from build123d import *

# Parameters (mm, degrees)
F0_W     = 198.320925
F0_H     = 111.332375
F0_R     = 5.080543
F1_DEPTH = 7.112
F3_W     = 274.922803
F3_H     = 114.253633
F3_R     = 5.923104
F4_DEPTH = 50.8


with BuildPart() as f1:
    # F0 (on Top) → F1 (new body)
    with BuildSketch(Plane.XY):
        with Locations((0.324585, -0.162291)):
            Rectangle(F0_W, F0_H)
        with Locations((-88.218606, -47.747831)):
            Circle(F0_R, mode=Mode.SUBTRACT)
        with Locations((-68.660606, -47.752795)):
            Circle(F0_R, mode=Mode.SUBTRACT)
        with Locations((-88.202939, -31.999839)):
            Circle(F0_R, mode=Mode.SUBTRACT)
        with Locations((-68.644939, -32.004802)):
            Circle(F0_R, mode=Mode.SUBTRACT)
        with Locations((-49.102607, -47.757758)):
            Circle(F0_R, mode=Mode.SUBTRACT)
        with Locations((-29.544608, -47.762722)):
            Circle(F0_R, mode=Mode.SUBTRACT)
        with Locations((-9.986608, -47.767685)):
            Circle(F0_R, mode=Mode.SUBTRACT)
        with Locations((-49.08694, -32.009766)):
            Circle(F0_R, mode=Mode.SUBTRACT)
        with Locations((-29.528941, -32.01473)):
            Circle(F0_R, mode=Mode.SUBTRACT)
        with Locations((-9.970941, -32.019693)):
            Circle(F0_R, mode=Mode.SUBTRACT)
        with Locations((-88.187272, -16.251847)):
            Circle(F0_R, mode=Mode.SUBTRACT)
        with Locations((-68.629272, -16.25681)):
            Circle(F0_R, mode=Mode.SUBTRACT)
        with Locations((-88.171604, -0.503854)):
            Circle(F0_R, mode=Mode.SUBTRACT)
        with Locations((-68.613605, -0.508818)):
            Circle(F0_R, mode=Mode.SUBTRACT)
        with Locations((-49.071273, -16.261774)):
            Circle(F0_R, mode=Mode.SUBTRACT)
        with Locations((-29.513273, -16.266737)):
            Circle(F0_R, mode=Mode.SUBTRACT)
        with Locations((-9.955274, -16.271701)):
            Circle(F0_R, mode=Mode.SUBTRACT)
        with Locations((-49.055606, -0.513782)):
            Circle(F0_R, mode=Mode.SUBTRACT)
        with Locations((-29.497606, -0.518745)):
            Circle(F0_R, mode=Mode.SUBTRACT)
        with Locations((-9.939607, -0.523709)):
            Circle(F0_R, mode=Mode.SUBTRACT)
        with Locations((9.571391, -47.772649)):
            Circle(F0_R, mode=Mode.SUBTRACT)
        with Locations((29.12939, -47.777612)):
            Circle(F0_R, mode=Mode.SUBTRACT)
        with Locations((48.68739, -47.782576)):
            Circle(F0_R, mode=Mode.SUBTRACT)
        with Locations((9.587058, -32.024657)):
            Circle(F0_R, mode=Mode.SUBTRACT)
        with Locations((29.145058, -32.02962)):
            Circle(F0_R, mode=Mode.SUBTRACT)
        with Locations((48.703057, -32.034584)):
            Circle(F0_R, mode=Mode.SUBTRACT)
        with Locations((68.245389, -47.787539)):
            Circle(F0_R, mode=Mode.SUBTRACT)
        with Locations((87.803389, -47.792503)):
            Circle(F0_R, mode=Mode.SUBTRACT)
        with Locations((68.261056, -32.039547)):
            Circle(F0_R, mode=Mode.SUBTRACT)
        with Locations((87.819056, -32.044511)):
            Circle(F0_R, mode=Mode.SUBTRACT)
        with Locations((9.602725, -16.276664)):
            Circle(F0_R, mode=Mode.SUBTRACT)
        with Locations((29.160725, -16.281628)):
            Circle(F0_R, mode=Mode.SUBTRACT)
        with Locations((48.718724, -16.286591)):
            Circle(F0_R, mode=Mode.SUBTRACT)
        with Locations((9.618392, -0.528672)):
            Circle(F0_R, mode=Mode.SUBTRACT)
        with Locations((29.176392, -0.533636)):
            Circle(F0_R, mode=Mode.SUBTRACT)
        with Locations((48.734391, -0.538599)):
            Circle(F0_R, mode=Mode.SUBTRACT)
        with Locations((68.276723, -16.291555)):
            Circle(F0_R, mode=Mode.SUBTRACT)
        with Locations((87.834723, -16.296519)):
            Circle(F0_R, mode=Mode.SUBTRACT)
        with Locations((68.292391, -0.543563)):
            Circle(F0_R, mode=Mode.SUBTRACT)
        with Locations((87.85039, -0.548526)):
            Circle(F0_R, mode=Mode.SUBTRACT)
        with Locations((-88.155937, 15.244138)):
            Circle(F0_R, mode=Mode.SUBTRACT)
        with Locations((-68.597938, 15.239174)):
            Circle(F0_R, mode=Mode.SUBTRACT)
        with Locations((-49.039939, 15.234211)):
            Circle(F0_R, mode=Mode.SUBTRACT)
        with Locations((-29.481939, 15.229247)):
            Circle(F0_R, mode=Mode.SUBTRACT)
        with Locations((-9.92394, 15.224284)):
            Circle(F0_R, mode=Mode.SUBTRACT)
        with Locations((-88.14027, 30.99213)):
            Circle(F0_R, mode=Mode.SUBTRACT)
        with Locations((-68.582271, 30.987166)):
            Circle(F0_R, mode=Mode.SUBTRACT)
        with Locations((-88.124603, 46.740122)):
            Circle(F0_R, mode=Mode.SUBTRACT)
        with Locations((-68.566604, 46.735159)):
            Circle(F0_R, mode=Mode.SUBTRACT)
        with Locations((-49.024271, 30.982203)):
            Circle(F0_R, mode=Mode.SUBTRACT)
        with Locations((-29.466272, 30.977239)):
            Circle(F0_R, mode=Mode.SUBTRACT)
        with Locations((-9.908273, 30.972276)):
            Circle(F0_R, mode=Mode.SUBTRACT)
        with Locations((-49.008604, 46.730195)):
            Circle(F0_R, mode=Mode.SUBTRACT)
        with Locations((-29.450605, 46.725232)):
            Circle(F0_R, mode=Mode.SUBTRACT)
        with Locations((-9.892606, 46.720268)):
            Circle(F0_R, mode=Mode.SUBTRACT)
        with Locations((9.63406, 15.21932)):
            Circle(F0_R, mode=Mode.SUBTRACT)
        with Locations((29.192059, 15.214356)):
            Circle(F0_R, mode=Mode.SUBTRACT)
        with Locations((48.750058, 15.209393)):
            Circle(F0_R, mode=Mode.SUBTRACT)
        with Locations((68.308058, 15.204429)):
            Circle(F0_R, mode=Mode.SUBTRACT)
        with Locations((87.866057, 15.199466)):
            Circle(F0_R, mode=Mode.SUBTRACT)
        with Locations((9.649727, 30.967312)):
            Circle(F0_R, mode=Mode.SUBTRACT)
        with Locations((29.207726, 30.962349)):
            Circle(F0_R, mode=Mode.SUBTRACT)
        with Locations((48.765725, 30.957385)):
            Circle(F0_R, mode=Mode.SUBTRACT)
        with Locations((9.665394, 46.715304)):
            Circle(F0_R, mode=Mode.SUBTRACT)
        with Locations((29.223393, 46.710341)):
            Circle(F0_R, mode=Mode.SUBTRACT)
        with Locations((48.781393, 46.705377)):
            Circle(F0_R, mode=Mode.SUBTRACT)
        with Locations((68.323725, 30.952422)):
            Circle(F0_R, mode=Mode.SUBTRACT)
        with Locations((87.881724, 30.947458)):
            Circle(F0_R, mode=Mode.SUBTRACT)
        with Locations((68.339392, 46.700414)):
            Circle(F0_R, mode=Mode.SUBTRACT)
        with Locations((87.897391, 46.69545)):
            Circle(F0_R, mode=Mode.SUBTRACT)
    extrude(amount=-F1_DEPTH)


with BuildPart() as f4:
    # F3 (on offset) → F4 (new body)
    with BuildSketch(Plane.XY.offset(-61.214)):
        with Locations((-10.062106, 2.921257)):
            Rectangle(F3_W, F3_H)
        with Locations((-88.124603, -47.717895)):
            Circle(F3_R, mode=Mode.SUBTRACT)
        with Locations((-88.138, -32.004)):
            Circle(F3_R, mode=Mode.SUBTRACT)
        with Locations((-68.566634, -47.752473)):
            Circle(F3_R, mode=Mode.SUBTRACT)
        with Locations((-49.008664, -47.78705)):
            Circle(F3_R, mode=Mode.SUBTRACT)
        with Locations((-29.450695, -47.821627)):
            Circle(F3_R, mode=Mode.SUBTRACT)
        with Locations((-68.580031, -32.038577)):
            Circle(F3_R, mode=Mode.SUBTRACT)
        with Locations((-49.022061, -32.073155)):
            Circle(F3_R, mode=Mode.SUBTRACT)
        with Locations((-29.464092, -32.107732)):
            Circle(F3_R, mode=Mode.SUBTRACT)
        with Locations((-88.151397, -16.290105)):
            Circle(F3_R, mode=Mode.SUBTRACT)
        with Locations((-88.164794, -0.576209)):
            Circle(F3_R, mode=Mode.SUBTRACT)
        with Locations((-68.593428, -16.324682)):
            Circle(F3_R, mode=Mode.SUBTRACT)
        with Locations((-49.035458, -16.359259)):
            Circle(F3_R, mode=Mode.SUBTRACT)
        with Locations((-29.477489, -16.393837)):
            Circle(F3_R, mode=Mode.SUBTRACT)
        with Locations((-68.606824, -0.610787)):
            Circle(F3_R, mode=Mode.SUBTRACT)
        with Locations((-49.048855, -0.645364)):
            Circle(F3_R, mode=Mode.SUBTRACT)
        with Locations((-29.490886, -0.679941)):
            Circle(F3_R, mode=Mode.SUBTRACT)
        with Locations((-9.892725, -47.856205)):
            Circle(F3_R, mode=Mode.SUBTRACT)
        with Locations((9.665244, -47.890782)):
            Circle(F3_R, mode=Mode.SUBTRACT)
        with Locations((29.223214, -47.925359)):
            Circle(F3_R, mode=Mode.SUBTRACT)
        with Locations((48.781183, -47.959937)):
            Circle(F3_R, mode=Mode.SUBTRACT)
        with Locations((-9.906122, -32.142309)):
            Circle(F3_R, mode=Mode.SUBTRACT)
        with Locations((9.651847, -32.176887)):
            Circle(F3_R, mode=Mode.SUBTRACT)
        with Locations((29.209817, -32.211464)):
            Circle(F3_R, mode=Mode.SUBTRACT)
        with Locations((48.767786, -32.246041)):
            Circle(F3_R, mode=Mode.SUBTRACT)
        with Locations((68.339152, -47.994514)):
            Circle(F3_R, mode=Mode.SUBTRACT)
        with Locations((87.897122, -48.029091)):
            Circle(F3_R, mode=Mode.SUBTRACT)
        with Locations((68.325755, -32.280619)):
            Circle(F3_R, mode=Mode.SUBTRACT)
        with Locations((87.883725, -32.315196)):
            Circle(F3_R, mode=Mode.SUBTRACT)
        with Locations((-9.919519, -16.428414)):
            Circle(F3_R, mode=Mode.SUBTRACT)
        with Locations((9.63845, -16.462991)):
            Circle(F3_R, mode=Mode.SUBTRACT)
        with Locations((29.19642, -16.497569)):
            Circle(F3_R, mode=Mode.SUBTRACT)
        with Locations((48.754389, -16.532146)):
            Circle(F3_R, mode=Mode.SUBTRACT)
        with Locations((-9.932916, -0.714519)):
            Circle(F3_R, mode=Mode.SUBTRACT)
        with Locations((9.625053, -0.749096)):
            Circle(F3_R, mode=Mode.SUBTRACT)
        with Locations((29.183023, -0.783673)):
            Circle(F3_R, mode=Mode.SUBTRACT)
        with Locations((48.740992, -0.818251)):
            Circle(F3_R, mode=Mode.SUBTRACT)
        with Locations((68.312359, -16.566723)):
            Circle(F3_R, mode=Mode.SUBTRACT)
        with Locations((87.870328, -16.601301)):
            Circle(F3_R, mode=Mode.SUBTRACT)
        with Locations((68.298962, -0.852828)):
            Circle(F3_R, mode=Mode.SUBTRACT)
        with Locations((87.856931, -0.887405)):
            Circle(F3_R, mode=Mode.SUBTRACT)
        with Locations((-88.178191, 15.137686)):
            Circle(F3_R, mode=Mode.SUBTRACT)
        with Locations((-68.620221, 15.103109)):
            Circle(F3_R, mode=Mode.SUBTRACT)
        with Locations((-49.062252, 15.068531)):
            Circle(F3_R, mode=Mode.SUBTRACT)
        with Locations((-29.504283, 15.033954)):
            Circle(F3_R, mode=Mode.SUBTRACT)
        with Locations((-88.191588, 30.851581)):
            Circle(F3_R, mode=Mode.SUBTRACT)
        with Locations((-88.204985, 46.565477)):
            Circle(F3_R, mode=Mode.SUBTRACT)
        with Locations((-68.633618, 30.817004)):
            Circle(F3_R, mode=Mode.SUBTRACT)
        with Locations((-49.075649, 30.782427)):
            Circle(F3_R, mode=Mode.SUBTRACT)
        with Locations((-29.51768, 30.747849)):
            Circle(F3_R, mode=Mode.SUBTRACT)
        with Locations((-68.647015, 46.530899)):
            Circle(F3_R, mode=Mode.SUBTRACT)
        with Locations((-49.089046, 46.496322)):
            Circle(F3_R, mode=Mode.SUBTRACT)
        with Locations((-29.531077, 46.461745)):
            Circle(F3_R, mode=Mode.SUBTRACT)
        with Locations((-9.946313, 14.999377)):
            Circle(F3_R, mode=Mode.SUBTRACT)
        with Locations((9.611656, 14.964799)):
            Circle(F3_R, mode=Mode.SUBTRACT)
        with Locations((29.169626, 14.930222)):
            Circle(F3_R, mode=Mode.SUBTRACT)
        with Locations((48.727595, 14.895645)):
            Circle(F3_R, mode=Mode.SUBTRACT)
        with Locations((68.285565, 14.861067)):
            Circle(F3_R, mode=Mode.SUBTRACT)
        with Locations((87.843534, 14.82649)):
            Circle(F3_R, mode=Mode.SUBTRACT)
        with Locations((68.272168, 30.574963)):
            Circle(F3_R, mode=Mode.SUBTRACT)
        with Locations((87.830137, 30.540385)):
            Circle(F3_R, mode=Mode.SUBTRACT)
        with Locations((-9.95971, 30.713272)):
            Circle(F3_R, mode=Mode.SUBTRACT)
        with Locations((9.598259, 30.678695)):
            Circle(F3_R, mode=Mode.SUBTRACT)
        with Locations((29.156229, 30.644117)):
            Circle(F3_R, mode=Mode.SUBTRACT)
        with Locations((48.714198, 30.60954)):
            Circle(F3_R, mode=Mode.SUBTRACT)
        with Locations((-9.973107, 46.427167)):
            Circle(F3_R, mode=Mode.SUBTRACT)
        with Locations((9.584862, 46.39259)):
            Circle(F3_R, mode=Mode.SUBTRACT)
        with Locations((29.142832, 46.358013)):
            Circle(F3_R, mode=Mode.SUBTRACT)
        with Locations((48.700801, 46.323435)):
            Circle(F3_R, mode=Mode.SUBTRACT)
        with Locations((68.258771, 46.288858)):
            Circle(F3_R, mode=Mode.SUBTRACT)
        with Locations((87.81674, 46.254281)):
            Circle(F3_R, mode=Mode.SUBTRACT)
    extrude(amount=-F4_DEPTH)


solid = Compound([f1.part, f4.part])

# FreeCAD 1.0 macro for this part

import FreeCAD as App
import Part
import Sketcher
from FreeCAD import Vector
Q = App.Units.Quantity


def add_polygon(sketch, points):
    """Adds a closed chain of lines whose ends are joined by coincident constraints."""
    first, n = sketch.GeometryCount, len(points)
    for a, b in zip(points, points[1:] + points[:1]):
        sketch.addGeometry(Part.LineSegment(App.Vector(*a, 0), App.Vector(*b, 0)), False)
    for i in range(n):
        sketch.addConstraint(Sketcher.Constraint("Coincident", first + i, 2, first + (i + 1) % n, 1))

doc = App.newDocument("Part")
body = doc.addObject("PartDesign::Body", "Body")

sketch1 = body.newObject("Sketcher::SketchObject", "Sketch")
sketch1.AttachmentSupport = (doc.getObject("XY_Plane"), [""])
sketch1.MapMode = "FlatFace"
add_polygon(sketch1, [(-98.835877, 55.503897), (-98.835877, -55.828479), (99.485047, -55.828479), (99.485047, 55.503897)])
sketch1.addGeometry(Part.Circle(Vector(-88.218606, -47.747831, 0), Vector(0, 0, 1), 5.080543), False)
sketch1.addGeometry(Part.Circle(Vector(-68.660606, -47.752795, 0), Vector(0, 0, 1), 5.080543), False)
sketch1.addGeometry(Part.Circle(Vector(-49.102607, -47.757758, 0), Vector(0, 0, 1), 5.080543), False)
sketch1.addGeometry(Part.Circle(Vector(-88.202939, -31.999839, 0), Vector(0, 0, 1), 5.080543), False)
sketch1.addGeometry(Part.Circle(Vector(-68.644939, -32.004802, 0), Vector(0, 0, 1), 5.080543), False)
sketch1.addGeometry(Part.Circle(Vector(-49.08694, -32.009766, 0), Vector(0, 0, 1), 5.080543), False)
sketch1.addGeometry(Part.Circle(Vector(-29.544608, -47.762722, 0), Vector(0, 0, 1), 5.080543), False)
sketch1.addGeometry(Part.Circle(Vector(-9.986608, -47.767685, 0), Vector(0, 0, 1), 5.080543), False)
sketch1.addGeometry(Part.Circle(Vector(-29.528941, -32.01473, 0), Vector(0, 0, 1), 5.080543), False)
sketch1.addGeometry(Part.Circle(Vector(-9.970941, -32.019693, 0), Vector(0, 0, 1), 5.080543), False)
sketch1.addGeometry(Part.Circle(Vector(-88.187272, -16.251847, 0), Vector(0, 0, 1), 5.080543), False)
sketch1.addGeometry(Part.Circle(Vector(-68.629272, -16.25681, 0), Vector(0, 0, 1), 5.080543), False)
sketch1.addGeometry(Part.Circle(Vector(-49.071273, -16.261774, 0), Vector(0, 0, 1), 5.080543), False)
sketch1.addGeometry(Part.Circle(Vector(-29.513273, -16.266737, 0), Vector(0, 0, 1), 5.080543), False)
sketch1.addGeometry(Part.Circle(Vector(-9.955274, -16.271701, 0), Vector(0, 0, 1), 5.080543), False)
sketch1.addGeometry(Part.Circle(Vector(9.571391, -47.772649, 0), Vector(0, 0, 1), 5.080543), False)
sketch1.addGeometry(Part.Circle(Vector(29.12939, -47.777612, 0), Vector(0, 0, 1), 5.080543), False)
sketch1.addGeometry(Part.Circle(Vector(9.587058, -32.024657, 0), Vector(0, 0, 1), 5.080543), False)
sketch1.addGeometry(Part.Circle(Vector(29.145058, -32.02962, 0), Vector(0, 0, 1), 5.080543), False)
sketch1.addGeometry(Part.Circle(Vector(48.68739, -47.782576, 0), Vector(0, 0, 1), 5.080543), False)
sketch1.addGeometry(Part.Circle(Vector(68.245389, -47.787539, 0), Vector(0, 0, 1), 5.080543), False)
sketch1.addGeometry(Part.Circle(Vector(87.803389, -47.792503, 0), Vector(0, 0, 1), 5.080543), False)
sketch1.addGeometry(Part.Circle(Vector(48.703057, -32.034584, 0), Vector(0, 0, 1), 5.080543), False)
sketch1.addGeometry(Part.Circle(Vector(68.261056, -32.039547, 0), Vector(0, 0, 1), 5.080543), False)
sketch1.addGeometry(Part.Circle(Vector(87.819056, -32.044511, 0), Vector(0, 0, 1), 5.080543), False)
sketch1.addGeometry(Part.Circle(Vector(9.602725, -16.276664, 0), Vector(0, 0, 1), 5.080543), False)
sketch1.addGeometry(Part.Circle(Vector(29.160725, -16.281628, 0), Vector(0, 0, 1), 5.080543), False)
sketch1.addGeometry(Part.Circle(Vector(9.618392, -0.528672, 0), Vector(0, 0, 1), 5.080543), False)
sketch1.addGeometry(Part.Circle(Vector(29.176392, -0.533636, 0), Vector(0, 0, 1), 5.080543), False)
sketch1.addGeometry(Part.Circle(Vector(48.718724, -16.286591, 0), Vector(0, 0, 1), 5.080543), False)
sketch1.addGeometry(Part.Circle(Vector(68.276723, -16.291555, 0), Vector(0, 0, 1), 5.080543), False)
sketch1.addGeometry(Part.Circle(Vector(87.834723, -16.296519, 0), Vector(0, 0, 1), 5.080543), False)
sketch1.addGeometry(Part.Circle(Vector(48.734391, -0.538599, 0), Vector(0, 0, 1), 5.080543), False)
sketch1.addGeometry(Part.Circle(Vector(68.292391, -0.543563, 0), Vector(0, 0, 1), 5.080543), False)
sketch1.addGeometry(Part.Circle(Vector(87.85039, -0.548526, 0), Vector(0, 0, 1), 5.080543), False)
sketch1.addGeometry(Part.Circle(Vector(-88.171604, -0.503854, 0), Vector(0, 0, 1), 5.080543), False)
sketch1.addGeometry(Part.Circle(Vector(-68.613605, -0.508818, 0), Vector(0, 0, 1), 5.080543), False)
sketch1.addGeometry(Part.Circle(Vector(-49.055606, -0.513782, 0), Vector(0, 0, 1), 5.080543), False)
sketch1.addGeometry(Part.Circle(Vector(-88.155937, 15.244138, 0), Vector(0, 0, 1), 5.080543), False)
sketch1.addGeometry(Part.Circle(Vector(-68.597938, 15.239174, 0), Vector(0, 0, 1), 5.080543), False)
sketch1.addGeometry(Part.Circle(Vector(-49.039939, 15.234211, 0), Vector(0, 0, 1), 5.080543), False)
sketch1.addGeometry(Part.Circle(Vector(-29.497606, -0.518745, 0), Vector(0, 0, 1), 5.080543), False)
sketch1.addGeometry(Part.Circle(Vector(-9.939607, -0.523709, 0), Vector(0, 0, 1), 5.080543), False)
sketch1.addGeometry(Part.Circle(Vector(-29.481939, 15.229247, 0), Vector(0, 0, 1), 5.080543), False)
sketch1.addGeometry(Part.Circle(Vector(-9.92394, 15.224284, 0), Vector(0, 0, 1), 5.080543), False)
sketch1.addGeometry(Part.Circle(Vector(-88.14027, 30.99213, 0), Vector(0, 0, 1), 5.080543), False)
sketch1.addGeometry(Part.Circle(Vector(-68.582271, 30.987166, 0), Vector(0, 0, 1), 5.080543), False)
sketch1.addGeometry(Part.Circle(Vector(-49.024271, 30.982203, 0), Vector(0, 0, 1), 5.080543), False)
sketch1.addGeometry(Part.Circle(Vector(-88.124603, 46.740122, 0), Vector(0, 0, 1), 5.080543), False)
sketch1.addGeometry(Part.Circle(Vector(-68.566604, 46.735159, 0), Vector(0, 0, 1), 5.080543), False)
sketch1.addGeometry(Part.Circle(Vector(-49.008604, 46.730195, 0), Vector(0, 0, 1), 5.080543), False)
sketch1.addGeometry(Part.Circle(Vector(-29.466272, 30.977239, 0), Vector(0, 0, 1), 5.080543), False)
sketch1.addGeometry(Part.Circle(Vector(-9.908273, 30.972276, 0), Vector(0, 0, 1), 5.080543), False)
sketch1.addGeometry(Part.Circle(Vector(-29.450605, 46.725232, 0), Vector(0, 0, 1), 5.080543), False)
sketch1.addGeometry(Part.Circle(Vector(-9.892606, 46.720268, 0), Vector(0, 0, 1), 5.080543), False)
sketch1.addGeometry(Part.Circle(Vector(9.63406, 15.21932, 0), Vector(0, 0, 1), 5.080543), False)
sketch1.addGeometry(Part.Circle(Vector(29.192059, 15.214356, 0), Vector(0, 0, 1), 5.080543), False)
sketch1.addGeometry(Part.Circle(Vector(48.750058, 15.209393, 0), Vector(0, 0, 1), 5.080543), False)
sketch1.addGeometry(Part.Circle(Vector(68.308058, 15.204429, 0), Vector(0, 0, 1), 5.080543), False)
sketch1.addGeometry(Part.Circle(Vector(87.866057, 15.199466, 0), Vector(0, 0, 1), 5.080543), False)
sketch1.addGeometry(Part.Circle(Vector(9.649727, 30.967312, 0), Vector(0, 0, 1), 5.080543), False)
sketch1.addGeometry(Part.Circle(Vector(29.207726, 30.962349, 0), Vector(0, 0, 1), 5.080543), False)
sketch1.addGeometry(Part.Circle(Vector(9.665394, 46.715304, 0), Vector(0, 0, 1), 5.080543), False)
sketch1.addGeometry(Part.Circle(Vector(29.223393, 46.710341, 0), Vector(0, 0, 1), 5.080543), False)
sketch1.addGeometry(Part.Circle(Vector(48.765725, 30.957385, 0), Vector(0, 0, 1), 5.080543), False)
sketch1.addGeometry(Part.Circle(Vector(68.323725, 30.952422, 0), Vector(0, 0, 1), 5.080543), False)
sketch1.addGeometry(Part.Circle(Vector(87.881724, 30.947458, 0), Vector(0, 0, 1), 5.080543), False)
sketch1.addGeometry(Part.Circle(Vector(48.781393, 46.705377, 0), Vector(0, 0, 1), 5.080543), False)
sketch1.addGeometry(Part.Circle(Vector(68.339392, 46.700414, 0), Vector(0, 0, 1), 5.080543), False)
sketch1.addGeometry(Part.Circle(Vector(87.897391, 46.69545, 0), Vector(0, 0, 1), 5.080543), False)
sketch1.addConstraint([
    Sketcher.Constraint("Vertical", 0),
    Sketcher.Constraint("Horizontal", 1),
    Sketcher.Constraint("Vertical", 2),
    Sketcher.Constraint("Horizontal", 3),
    Sketcher.Constraint("Equal", 4, 5),
    Sketcher.Constraint("Equal", 5, 6),
    Sketcher.Constraint("Equal", 6, 7),
    Sketcher.Constraint("Equal", 7, 8),
    Sketcher.Constraint("Equal", 8, 9),
    Sketcher.Constraint("Equal", 9, 10),
    Sketcher.Constraint("Equal", 10, 11),
    Sketcher.Constraint("Equal", 11, 12),
    Sketcher.Constraint("Equal", 12, 13),
    Sketcher.Constraint("Equal", 13, 14),
    Sketcher.Constraint("Equal", 14, 15),
    Sketcher.Constraint("Equal", 15, 16),
    Sketcher.Constraint("Equal", 16, 17),
    Sketcher.Constraint("Equal", 17, 18),
    Sketcher.Constraint("Equal", 18, 19),
    Sketcher.Constraint("Equal", 19, 20),
    Sketcher.Constraint("Equal", 20, 21),
    Sketcher.Constraint("Equal", 21, 22),
    Sketcher.Constraint("Equal", 22, 23),
    Sketcher.Constraint("Equal", 23, 24),
    Sketcher.Constraint("Equal", 24, 25),
    Sketcher.Constraint("Equal", 25, 26),
    Sketcher.Constraint("Equal", 26, 27),
    Sketcher.Constraint("Equal", 27, 28),
    Sketcher.Constraint("Equal", 28, 29),
    Sketcher.Constraint("Equal", 29, 30),
    Sketcher.Constraint("Equal", 30, 31),
    Sketcher.Constraint("Equal", 31, 32),
    Sketcher.Constraint("Equal", 32, 33),
    Sketcher.Constraint("Equal", 33, 34),
    Sketcher.Constraint("Equal", 34, 35),
    Sketcher.Constraint("Equal", 35, 36),
    Sketcher.Constraint("Equal", 36, 37),
    Sketcher.Constraint("Equal", 37, 38),
    Sketcher.Constraint("Equal", 38, 39),
    Sketcher.Constraint("Equal", 39, 40),
    Sketcher.Constraint("Equal", 40, 41),
    Sketcher.Constraint("Equal", 41, 42),
    Sketcher.Constraint("Equal", 42, 43),
    Sketcher.Constraint("Equal", 43, 44),
    Sketcher.Constraint("Equal", 44, 45),
    Sketcher.Constraint("Equal", 45, 46),
    Sketcher.Constraint("Equal", 46, 47),
    Sketcher.Constraint("Equal", 47, 48),
    Sketcher.Constraint("Equal", 48, 49),
    Sketcher.Constraint("Equal", 49, 50),
    Sketcher.Constraint("Equal", 50, 51),
    Sketcher.Constraint("Equal", 51, 52),
    Sketcher.Constraint("Equal", 52, 53),
    Sketcher.Constraint("Equal", 53, 54),
    Sketcher.Constraint("Equal", 54, 55),
    Sketcher.Constraint("Equal", 55, 56),
    Sketcher.Constraint("Equal", 56, 57),
    Sketcher.Constraint("Equal", 57, 58),
    Sketcher.Constraint("Equal", 58, 59),
    Sketcher.Constraint("Equal", 59, 60),
    Sketcher.Constraint("Equal", 60, 61),
    Sketcher.Constraint("Equal", 61, 62),
    Sketcher.Constraint("Equal", 62, 63),
    Sketcher.Constraint("Equal", 63, 64),
    Sketcher.Constraint("Equal", 64, 65),
    Sketcher.Constraint("Equal", 65, 66),
    Sketcher.Constraint("Equal", 66, 67),
    Sketcher.Constraint("Equal", 67, 68),
    Sketcher.Constraint("Equal", 68, 69),
    Sketcher.Constraint("Equal", 69, 70),
    Sketcher.Constraint("Equal", 70, 71),
    Sketcher.Constraint("Equal", 71, 72),
    Sketcher.Constraint("Equal", 72, 73),
    Sketcher.Constraint("Diameter", 4, 10.161086),
    Sketcher.Constraint("DistanceY", 34, 3, -1, 1, Q("0.6413998 in")),
    Sketcher.Constraint("DistanceY", 37, 3, -1, 1, Q("0.0214001 in")),
    Sketcher.Constraint("DistanceY", 8, 3, -1, 1, 32.004802),
    Sketcher.Constraint("DistanceY", 18, 3, -1, 1, 16.271701),
    Sketcher.Constraint("DistanceY", 36, 3, -1, 1, 0.538599),
    Sketcher.Constraint("DistanceX", 1, 1, 1, 2, 198.320925),
    Sketcher.Constraint("DistanceY", 0, 2, 0, 1, 111.332375),
    Sketcher.Constraint("DistanceY", 4, 3, -1, 1, 47.747831),
    Sketcher.Constraint("DistanceY", 6, 3, -1, 1, 47.757758),
    Sketcher.Constraint("DistanceX", 7, 3, -1, 1, 88.202939),
    Sketcher.Constraint("DistanceY", 7, 3, -1, 1, 31.999839),
    Sketcher.Constraint("DistanceX", 8, 3, -1, 1, 68.644939),
    Sketcher.Constraint("DistanceX", 9, 3, -1, 1, 49.08694),
    Sketcher.Constraint("DistanceX", 10, 3, -1, 1, 29.544608),
    Sketcher.Constraint("DistanceY", 10, 3, -1, 1, 47.762722),
    Sketcher.Constraint("DistanceX", 12, 3, -1, 1, 29.528941),
    Sketcher.Constraint("DistanceY", 12, 3, -1, 1, 32.01473),
    Sketcher.Constraint("DistanceX", 13, 3, -1, 1, 9.970941),
    Sketcher.Constraint("DistanceX", 14, 3, -1, 1, 88.187272),
    Sketcher.Constraint("DistanceX", 15, 3, -1, 1, 68.629272),
    Sketcher.Constraint("DistanceY", 15, 3, -1, 1, 16.25681),
    Sketcher.Constraint("DistanceX", -1, 1, 19, 3, 9.571391),
    Sketcher.Constraint("DistanceY", 19, 3, -1, 1, 47.772649),
    Sketcher.Constraint("DistanceX", -1, 1, 20, 3, 29.12939),
    Sketcher.Constraint("DistanceY", 20, 3, -1, 1, 47.777612),
    Sketcher.Constraint("DistanceX", -1, 1, 21, 3, 9.587058),
    Sketcher.Constraint("DistanceY", 22, 3, -1, 1, 32.02962),
    Sketcher.Constraint("DistanceX", -1, 1, 23, 3, 48.68739),
    Sketcher.Constraint("DistanceX", -1, 1, 24, 3, 68.245389),
    Sketcher.Constraint("DistanceY", 24, 3, -1, 1, 47.787539),
    Sketcher.Constraint("DistanceX", -1, 1, 25, 3, 87.803389),
    Sketcher.Constraint("DistanceY", 28, 3, -1, 1, 32.044511),
    Sketcher.Constraint("DistanceY", 30, 3, -1, 1, 16.281628),
    Sketcher.Constraint("DistanceX", -1, 1, 32, 3, 29.176392),
    Sketcher.Constraint("DistanceY", 33, 3, -1, 1, 16.286591),
    Sketcher.Constraint("DistanceY", 35, 3, -1, 1, 16.296519),
    Sketcher.Constraint("DistanceX", -1, 1, 36, 3, 48.734391),
    Sketcher.Constraint("DistanceX", -1, 1, 37, 3, 68.292391),
    Sketcher.Constraint("DistanceX", -1, 1, 38, 3, 87.85039),
    Sketcher.Constraint("DistanceY", 41, 3, -1, 1, 0.513782),
    Sketcher.Constraint("DistanceX", 43, 3, -1, 1, 68.597938),
    Sketcher.Constraint("DistanceX", 44, 3, -1, 1, 49.039939),
    Sketcher.Constraint("DistanceY", -1, 1, 44, 3, 15.234211),
    Sketcher.Constraint("DistanceY", 46, 3, -1, 1, 0.523709),
    Sketcher.Constraint("DistanceX", 47, 3, -1, 1, 29.481939),
    Sketcher.Constraint("DistanceX", 48, 3, -1, 1, 9.92394),
    Sketcher.Constraint("DistanceX", 49, 3, -1, 1, 88.14027),
    Sketcher.Constraint("DistanceY", -1, 1, 49, 3, 30.99213),
    Sketcher.Constraint("DistanceX", 50, 3, -1, 1, 68.582271),
    Sketcher.Constraint("DistanceX", 51, 3, -1, 1, 49.024271),
    Sketcher.Constraint("DistanceY", -1, 1, 53, 3, 46.735159),
    Sketcher.Constraint("DistanceX", 55, 3, -1, 1, 29.466272),
    Sketcher.Constraint("DistanceY", -1, 1, 55, 3, 30.977239),
    Sketcher.Constraint("DistanceY", -1, 1, 57, 3, 46.725232),
    Sketcher.Constraint("DistanceX", -1, 1, 59, 3, 9.63406),
    Sketcher.Constraint("DistanceY", -1, 1, 59, 3, 15.21932),
    Sketcher.Constraint("DistanceX", -1, 1, 60, 3, 29.192059),
    Sketcher.Constraint("DistanceX", -1, 1, 61, 3, 48.750058),
    Sketcher.Constraint("DistanceX", -1, 1, 62, 3, 68.308058),
    Sketcher.Constraint("DistanceY", -1, 1, 62, 3, 15.204429),
    Sketcher.Constraint("DistanceY", -1, 1, 64, 3, 30.967312),
    Sketcher.Constraint("DistanceY", -1, 1, 65, 3, 30.962349),
    Sketcher.Constraint("DistanceY", -1, 1, 67, 3, 46.710341),
    Sketcher.Constraint("DistanceY", -1, 1, 69, 3, 30.952422),
    Sketcher.Constraint("DistanceY", -1, 1, 70, 3, 30.947458),
    Sketcher.Constraint("DistanceX", -1, 1, 73, 3, 87.897391),
    Sketcher.Constraint("DistanceY", -1, 1, 73, 3, 46.69545),
    Sketcher.Constraint("DistanceY", 0, 2, -1, 1, 55.828479),
    Sketcher.Constraint("DistanceX", 4, 3, -1, 1, 88.218606),
    Sketcher.Constraint("DistanceX", 5, 3, -1, 1, 68.660606),
    Sketcher.Constraint("DistanceY", 5, 3, -1, 1, 47.752795),
    Sketcher.Constraint("DistanceX", 6, 3, -1, 1, 49.102607),
    Sketcher.Constraint("DistanceY", 9, 3, -1, 1, 32.009766),
    Sketcher.Constraint("DistanceX", 11, 3, -1, 1, 9.986608),
    Sketcher.Constraint("DistanceY", 11, 3, -1, 1, 47.767685),
    Sketcher.Constraint("DistanceY", 13, 3, -1, 1, 32.019693),
    Sketcher.Constraint("DistanceY", 14, 3, -1, 1, 16.251847),
    Sketcher.Constraint("DistanceX", 16, 3, -1, 1, 49.071273),
    Sketcher.Constraint("DistanceY", 16, 3, -1, 1, 16.261774),
    Sketcher.Constraint("DistanceX", 17, 3, -1, 1, 29.513273),
    Sketcher.Constraint("DistanceY", 17, 3, -1, 1, 16.266737),
    Sketcher.Constraint("DistanceX", 18, 3, -1, 1, 9.955274),
    Sketcher.Constraint("DistanceY", 21, 3, -1, 1, 32.024657),
    Sketcher.Constraint("DistanceX", -1, 1, 22, 3, 29.145058),
    Sketcher.Constraint("DistanceY", 23, 3, -1, 1, 47.782576),
    Sketcher.Constraint("DistanceY", 25, 3, -1, 1, 47.792503),
    Sketcher.Constraint("DistanceX", -1, 1, 26, 3, 48.703057),
    Sketcher.Constraint("DistanceY", 26, 3, -1, 1, 32.034584),
    Sketcher.Constraint("DistanceX", -1, 1, 27, 3, 68.261056),
    Sketcher.Constraint("DistanceY", 27, 3, -1, 1, 32.039547),
    Sketcher.Constraint("DistanceX", -1, 1, 28, 3, 87.819056),
    Sketcher.Constraint("DistanceX", -1, 1, 29, 3, 9.602725),
    Sketcher.Constraint("DistanceY", 29, 3, -1, 1, 16.276664),
    Sketcher.Constraint("DistanceX", -1, 1, 30, 3, 29.160725),
    Sketcher.Constraint("DistanceX", -1, 1, 31, 3, 9.618392),
    Sketcher.Constraint("DistanceY", 31, 3, -1, 1, 0.528672),
    Sketcher.Constraint("DistanceY", 32, 3, -1, 1, 0.533636),
    Sketcher.Constraint("DistanceX", -1, 1, 33, 3, 48.718724),
    Sketcher.Constraint("DistanceX", -1, 1, 34, 3, 68.276723),
    Sketcher.Constraint("DistanceX", -1, 1, 35, 3, 87.834723),
    Sketcher.Constraint("DistanceY", 38, 3, -1, 1, 0.548526),
    Sketcher.Constraint("DistanceX", 39, 3, -1, 1, 88.171604),
    Sketcher.Constraint("DistanceY", 39, 3, -1, 1, 0.503854),
    Sketcher.Constraint("DistanceX", 40, 3, -1, 1, 68.613605),
    Sketcher.Constraint("DistanceY", 40, 3, -1, 1, 0.508818),
    Sketcher.Constraint("DistanceX", 41, 3, -1, 1, 49.055606),
    Sketcher.Constraint("DistanceX", 42, 3, -1, 1, 88.155937),
    Sketcher.Constraint("DistanceY", -1, 1, 42, 3, 15.244138),
    Sketcher.Constraint("DistanceY", -1, 1, 43, 3, 15.239174),
    Sketcher.Constraint("DistanceX", 45, 3, -1, 1, 29.497606),
    Sketcher.Constraint("DistanceY", 45, 3, -1, 1, 0.518745),
    Sketcher.Constraint("DistanceX", 46, 3, -1, 1, 9.939607),
    Sketcher.Constraint("DistanceY", -1, 1, 47, 3, 15.229247),
    Sketcher.Constraint("DistanceY", -1, 1, 48, 3, 15.224284),
    Sketcher.Constraint("DistanceY", -1, 1, 50, 3, 30.987166),
    Sketcher.Constraint("DistanceY", -1, 1, 51, 3, 30.982203),
    Sketcher.Constraint("DistanceX", 52, 3, -1, 1, 88.124603),
    Sketcher.Constraint("DistanceY", -1, 1, 52, 3, 46.740122),
    Sketcher.Constraint("DistanceX", 53, 3, -1, 1, 68.566604),
    Sketcher.Constraint("DistanceX", 54, 3, -1, 1, 49.008604),
    Sketcher.Constraint("DistanceY", -1, 1, 54, 3, 46.730195),
    Sketcher.Constraint("DistanceX", 56, 3, -1, 1, 9.908273),
    Sketcher.Constraint("DistanceY", -1, 1, 56, 3, 30.972276),
    Sketcher.Constraint("DistanceX", 57, 3, -1, 1, 29.450605),
    Sketcher.Constraint("DistanceX", 58, 3, -1, 1, 9.892606),
    Sketcher.Constraint("DistanceY", -1, 1, 58, 3, 46.720268),
    Sketcher.Constraint("DistanceY", -1, 1, 60, 3, 15.214356),
    Sketcher.Constraint("DistanceY", -1, 1, 61, 3, 15.209393),
    Sketcher.Constraint("DistanceX", -1, 1, 63, 3, 87.866057),
    Sketcher.Constraint("DistanceY", -1, 1, 63, 3, 15.199466),
    Sketcher.Constraint("DistanceX", -1, 1, 64, 3, 9.649727),
    Sketcher.Constraint("DistanceX", -1, 1, 65, 3, 29.207726),
    Sketcher.Constraint("DistanceX", -1, 1, 66, 3, 9.665394),
    Sketcher.Constraint("DistanceY", -1, 1, 66, 3, 46.715304),
    Sketcher.Constraint("DistanceX", -1, 1, 67, 3, 29.223393),
    Sketcher.Constraint("DistanceX", -1, 1, 68, 3, 48.765725),
    Sketcher.Constraint("DistanceY", -1, 1, 68, 3, 30.957385),
    Sketcher.Constraint("DistanceX", -1, 1, 69, 3, 68.323725),
    Sketcher.Constraint("DistanceX", -1, 1, 70, 3, 87.881724),
    Sketcher.Constraint("DistanceX", -1, 1, 71, 3, 48.781393),
    Sketcher.Constraint("DistanceY", -1, 1, 71, 3, 46.705377),
    Sketcher.Constraint("DistanceX", -1, 1, 72, 3, 68.339392),
    Sketcher.Constraint("DistanceY", -1, 1, 72, 3, 46.700414),
    Sketcher.Constraint("DistanceX", 0, 2, -1, 1, 98.835877),
])
pad1 = body.newObject("PartDesign::Pad", "Pad")
pad1.Profile = sketch1
pad1.Length = Q("0.28 in")
pad1.Reversed = True
body2 = doc.addObject("PartDesign::Body", "Body001")

sketch2 = body2.newObject("Sketcher::SketchObject", "Sketch001")
sketch2.AttachmentSupport = (doc.getObject("XY_Plane001"), [""])
sketch2.MapMode = "FlatFace"
sketch2.AttachmentOffset = App.Placement(Vector(0, 0, -2.41 * 25.4), App.Rotation())
add_polygon(sketch2, [(-147.523507, 60.048074), (-147.523507, -54.205559), (127.399295, -54.205559), (127.399295, 60.048074)])
sketch2.addGeometry(Part.Circle(Vector(-88.124603, -47.717895, 0), Vector(0, 0, 1), 5.923104), False)
sketch2.addGeometry(Part.Circle(Vector(-68.566634, -47.752473, 0), Vector(0, 0, 1), 5.923104), False)
sketch2.addGeometry(Part.Circle(Vector(-49.008664, -47.78705, 0), Vector(0, 0, 1), 5.923104), False)
sketch2.addGeometry(Part.Circle(Vector(-88.138, -32.004, 0), Vector(0, 0, 1), 5.923104), False)
sketch2.addGeometry(Part.Circle(Vector(-68.580031, -32.038577, 0), Vector(0, 0, 1), 5.923104), False)
sketch2.addGeometry(Part.Circle(Vector(-49.022061, -32.073155, 0), Vector(0, 0, 1), 5.923104), False)
sketch2.addGeometry(Part.Circle(Vector(-29.450695, -47.821627, 0), Vector(0, 0, 1), 5.923104), False)
sketch2.addGeometry(Part.Circle(Vector(-9.892725, -47.856205, 0), Vector(0, 0, 1), 5.923104), False)
sketch2.addGeometry(Part.Circle(Vector(-29.464092, -32.107732, 0), Vector(0, 0, 1), 5.923104), False)
sketch2.addGeometry(Part.Circle(Vector(-9.906122, -32.142309, 0), Vector(0, 0, 1), 5.923104), False)
sketch2.addGeometry(Part.Circle(Vector(-88.151397, -16.290105, 0), Vector(0, 0, 1), 5.923104), False)
sketch2.addGeometry(Part.Circle(Vector(-68.593428, -16.324682, 0), Vector(0, 0, 1), 5.923104), False)
sketch2.addGeometry(Part.Circle(Vector(-49.035458, -16.359259, 0), Vector(0, 0, 1), 5.923104), False)
sketch2.addGeometry(Part.Circle(Vector(-29.477489, -16.393837, 0), Vector(0, 0, 1), 5.923104), False)
sketch2.addGeometry(Part.Circle(Vector(-9.919519, -16.428414, 0), Vector(0, 0, 1), 5.923104), False)
sketch2.addGeometry(Part.Circle(Vector(9.665244, -47.890782, 0), Vector(0, 0, 1), 5.923104), False)
sketch2.addGeometry(Part.Circle(Vector(29.223214, -47.925359, 0), Vector(0, 0, 1), 5.923104), False)
sketch2.addGeometry(Part.Circle(Vector(9.651847, -32.176887, 0), Vector(0, 0, 1), 5.923104), False)
sketch2.addGeometry(Part.Circle(Vector(29.209817, -32.211464, 0), Vector(0, 0, 1), 5.923104), False)
sketch2.addGeometry(Part.Circle(Vector(48.781183, -47.959937, 0), Vector(0, 0, 1), 5.923104), False)
sketch2.addGeometry(Part.Circle(Vector(68.339152, -47.994514, 0), Vector(0, 0, 1), 5.923104), False)
sketch2.addGeometry(Part.Circle(Vector(87.897122, -48.029091, 0), Vector(0, 0, 1), 5.923104), False)
sketch2.addGeometry(Part.Circle(Vector(48.767786, -32.246041, 0), Vector(0, 0, 1), 5.923104), False)
sketch2.addGeometry(Part.Circle(Vector(68.325755, -32.280619, 0), Vector(0, 0, 1), 5.923104), False)
sketch2.addGeometry(Part.Circle(Vector(87.883725, -32.315196, 0), Vector(0, 0, 1), 5.923104), False)
sketch2.addGeometry(Part.Circle(Vector(9.63845, -16.462991, 0), Vector(0, 0, 1), 5.923104), False)
sketch2.addGeometry(Part.Circle(Vector(29.19642, -16.497569, 0), Vector(0, 0, 1), 5.923104), False)
sketch2.addGeometry(Part.Circle(Vector(9.625053, -0.749096, 0), Vector(0, 0, 1), 5.923104), False)
sketch2.addGeometry(Part.Circle(Vector(29.183023, -0.783673, 0), Vector(0, 0, 1), 5.923104), False)
sketch2.addGeometry(Part.Circle(Vector(48.754389, -16.532146, 0), Vector(0, 0, 1), 5.923104), False)
sketch2.addGeometry(Part.Circle(Vector(68.312359, -16.566723, 0), Vector(0, 0, 1), 5.923104), False)
sketch2.addGeometry(Part.Circle(Vector(87.870328, -16.601301, 0), Vector(0, 0, 1), 5.923104), False)
sketch2.addGeometry(Part.Circle(Vector(48.740992, -0.818251, 0), Vector(0, 0, 1), 5.923104), False)
sketch2.addGeometry(Part.Circle(Vector(68.298962, -0.852828, 0), Vector(0, 0, 1), 5.923104), False)
sketch2.addGeometry(Part.Circle(Vector(87.856931, -0.887405, 0), Vector(0, 0, 1), 5.923104), False)
sketch2.addGeometry(Part.Circle(Vector(-88.164794, -0.576209, 0), Vector(0, 0, 1), 5.923104), False)
sketch2.addGeometry(Part.Circle(Vector(-68.606824, -0.610787, 0), Vector(0, 0, 1), 5.923104), False)
sketch2.addGeometry(Part.Circle(Vector(-49.048855, -0.645364, 0), Vector(0, 0, 1), 5.923104), False)
sketch2.addGeometry(Part.Circle(Vector(-88.178191, 15.137686, 0), Vector(0, 0, 1), 5.923104), False)
sketch2.addGeometry(Part.Circle(Vector(-68.620221, 15.103109, 0), Vector(0, 0, 1), 5.923104), False)
sketch2.addGeometry(Part.Circle(Vector(-49.062252, 15.068531, 0), Vector(0, 0, 1), 5.923104), False)
sketch2.addGeometry(Part.Circle(Vector(-29.490886, -0.679941, 0), Vector(0, 0, 1), 5.923104), False)
sketch2.addGeometry(Part.Circle(Vector(-9.932916, -0.714519, 0), Vector(0, 0, 1), 5.923104), False)
sketch2.addGeometry(Part.Circle(Vector(-29.504283, 15.033954, 0), Vector(0, 0, 1), 5.923104), False)
sketch2.addGeometry(Part.Circle(Vector(-9.946313, 14.999377, 0), Vector(0, 0, 1), 5.923104), False)
sketch2.addGeometry(Part.Circle(Vector(-88.191588, 30.851581, 0), Vector(0, 0, 1), 5.923104), False)
sketch2.addGeometry(Part.Circle(Vector(-68.633618, 30.817004, 0), Vector(0, 0, 1), 5.923104), False)
sketch2.addGeometry(Part.Circle(Vector(-49.075649, 30.782427, 0), Vector(0, 0, 1), 5.923104), False)
sketch2.addGeometry(Part.Circle(Vector(-88.204985, 46.565477, 0), Vector(0, 0, 1), 5.923104), False)
sketch2.addGeometry(Part.Circle(Vector(-68.647015, 46.530899, 0), Vector(0, 0, 1), 5.923104), False)
sketch2.addGeometry(Part.Circle(Vector(-49.089046, 46.496322, 0), Vector(0, 0, 1), 5.923104), False)
sketch2.addGeometry(Part.Circle(Vector(-29.51768, 30.747849, 0), Vector(0, 0, 1), 5.923104), False)
sketch2.addGeometry(Part.Circle(Vector(-9.95971, 30.713272, 0), Vector(0, 0, 1), 5.923104), False)
sketch2.addGeometry(Part.Circle(Vector(-29.531077, 46.461745, 0), Vector(0, 0, 1), 5.923104), False)
sketch2.addGeometry(Part.Circle(Vector(-9.973107, 46.427167, 0), Vector(0, 0, 1), 5.923104), False)
sketch2.addGeometry(Part.Circle(Vector(9.611656, 14.964799, 0), Vector(0, 0, 1), 5.923104), False)
sketch2.addGeometry(Part.Circle(Vector(29.169626, 14.930222, 0), Vector(0, 0, 1), 5.923104), False)
sketch2.addGeometry(Part.Circle(Vector(48.727595, 14.895645, 0), Vector(0, 0, 1), 5.923104), False)
sketch2.addGeometry(Part.Circle(Vector(68.285565, 14.861067, 0), Vector(0, 0, 1), 5.923104), False)
sketch2.addGeometry(Part.Circle(Vector(87.843534, 14.82649, 0), Vector(0, 0, 1), 5.923104), False)
sketch2.addGeometry(Part.Circle(Vector(9.598259, 30.678695, 0), Vector(0, 0, 1), 5.923104), False)
sketch2.addGeometry(Part.Circle(Vector(29.156229, 30.644117, 0), Vector(0, 0, 1), 5.923104), False)
sketch2.addGeometry(Part.Circle(Vector(9.584862, 46.39259, 0), Vector(0, 0, 1), 5.923104), False)
sketch2.addGeometry(Part.Circle(Vector(29.142832, 46.358013, 0), Vector(0, 0, 1), 5.923104), False)
sketch2.addGeometry(Part.Circle(Vector(48.714198, 30.60954, 0), Vector(0, 0, 1), 5.923104), False)
sketch2.addGeometry(Part.Circle(Vector(68.272168, 30.574963, 0), Vector(0, 0, 1), 5.923104), False)
sketch2.addGeometry(Part.Circle(Vector(87.830137, 30.540385, 0), Vector(0, 0, 1), 5.923104), False)
sketch2.addGeometry(Part.Circle(Vector(48.700801, 46.323435, 0), Vector(0, 0, 1), 5.923104), False)
sketch2.addGeometry(Part.Circle(Vector(68.258771, 46.288858, 0), Vector(0, 0, 1), 5.923104), False)
sketch2.addGeometry(Part.Circle(Vector(87.81674, 46.254281, 0), Vector(0, 0, 1), 5.923104), False)
sketch2.addConstraint([
    Sketcher.Constraint("Vertical", 0),
    Sketcher.Constraint("Horizontal", 1),
    Sketcher.Constraint("Vertical", 2),
    Sketcher.Constraint("Horizontal", 3),
    Sketcher.Constraint("Equal", 4, 5),
    Sketcher.Constraint("Equal", 5, 6),
    Sketcher.Constraint("Equal", 6, 7),
    Sketcher.Constraint("Equal", 7, 8),
    Sketcher.Constraint("Equal", 8, 9),
    Sketcher.Constraint("Equal", 9, 10),
    Sketcher.Constraint("Equal", 10, 11),
    Sketcher.Constraint("Equal", 11, 12),
    Sketcher.Constraint("Equal", 12, 13),
    Sketcher.Constraint("Equal", 13, 14),
    Sketcher.Constraint("Equal", 14, 15),
    Sketcher.Constraint("Equal", 15, 16),
    Sketcher.Constraint("Equal", 16, 17),
    Sketcher.Constraint("Equal", 17, 18),
    Sketcher.Constraint("Equal", 18, 19),
    Sketcher.Constraint("Equal", 19, 20),
    Sketcher.Constraint("Equal", 20, 21),
    Sketcher.Constraint("Equal", 21, 22),
    Sketcher.Constraint("Equal", 22, 23),
    Sketcher.Constraint("Equal", 23, 24),
    Sketcher.Constraint("Equal", 24, 25),
    Sketcher.Constraint("Equal", 25, 26),
    Sketcher.Constraint("Equal", 26, 27),
    Sketcher.Constraint("Equal", 27, 28),
    Sketcher.Constraint("Equal", 28, 29),
    Sketcher.Constraint("Equal", 29, 30),
    Sketcher.Constraint("Equal", 30, 31),
    Sketcher.Constraint("Equal", 31, 32),
    Sketcher.Constraint("Equal", 32, 33),
    Sketcher.Constraint("Equal", 33, 34),
    Sketcher.Constraint("Equal", 34, 35),
    Sketcher.Constraint("Equal", 35, 36),
    Sketcher.Constraint("Equal", 36, 37),
    Sketcher.Constraint("Equal", 37, 38),
    Sketcher.Constraint("Equal", 38, 39),
    Sketcher.Constraint("Equal", 39, 40),
    Sketcher.Constraint("Equal", 40, 41),
    Sketcher.Constraint("Equal", 41, 42),
    Sketcher.Constraint("Equal", 42, 43),
    Sketcher.Constraint("Equal", 43, 44),
    Sketcher.Constraint("Equal", 44, 45),
    Sketcher.Constraint("Equal", 45, 46),
    Sketcher.Constraint("Equal", 46, 47),
    Sketcher.Constraint("Equal", 47, 48),
    Sketcher.Constraint("Equal", 48, 49),
    Sketcher.Constraint("Equal", 49, 50),
    Sketcher.Constraint("Equal", 50, 51),
    Sketcher.Constraint("Equal", 51, 52),
    Sketcher.Constraint("Equal", 52, 53),
    Sketcher.Constraint("Equal", 53, 54),
    Sketcher.Constraint("Equal", 54, 55),
    Sketcher.Constraint("Equal", 55, 56),
    Sketcher.Constraint("Equal", 56, 57),
    Sketcher.Constraint("Equal", 57, 58),
    Sketcher.Constraint("Equal", 58, 59),
    Sketcher.Constraint("Equal", 59, 60),
    Sketcher.Constraint("Equal", 60, 61),
    Sketcher.Constraint("Equal", 61, 62),
    Sketcher.Constraint("Equal", 62, 63),
    Sketcher.Constraint("Equal", 63, 64),
    Sketcher.Constraint("Equal", 64, 65),
    Sketcher.Constraint("Equal", 65, 66),
    Sketcher.Constraint("Equal", 66, 67),
    Sketcher.Constraint("Equal", 67, 68),
    Sketcher.Constraint("Equal", 68, 69),
    Sketcher.Constraint("Equal", 69, 70),
    Sketcher.Constraint("Equal", 70, 71),
    Sketcher.Constraint("Equal", 71, 72),
    Sketcher.Constraint("Equal", 72, 73),
    Sketcher.Constraint("DistanceX", 7, 3, -1, 1, Q("3.47 in")),
    Sketcher.Constraint("DistanceY", 7, 3, -1, 1, Q("1.26 in")),
    Sketcher.Constraint("Diameter", 4, 11.846208),
    Sketcher.Constraint("DistanceY", -1, 1, 68, 3, Q("1.2051 in")),
    Sketcher.Constraint("DistanceY", 35, 3, -1, 1, 16.601301),
    Sketcher.Constraint("DistanceY", -1, 1, 53, 3, 46.530899),
    Sketcher.Constraint("DistanceY", -1, 1, 59, 3, 14.964799),
    Sketcher.Constraint("DistanceX", -1, 1, 68, 3, 48.714198),
    Sketcher.Constraint("DistanceX", -1, 1, 71, 3, 48.700801),
    Sketcher.Constraint("DistanceX", 1, 1, 1, 2, 274.922803),
    Sketcher.Constraint("DistanceY", 0, 2, 0, 1, 114.253633),
    Sketcher.Constraint("DistanceY", 6, 3, -1, 1, 47.78705),
    Sketcher.Constraint("DistanceX", 8, 3, -1, 1, 68.580031),
    Sketcher.Constraint("DistanceX", 9, 3, -1, 1, 49.022061),
    Sketcher.Constraint("DistanceY", 13, 3, -1, 1, 32.142309),
    Sketcher.Constraint("DistanceX", 15, 3, -1, 1, 68.593428),
    Sketcher.Constraint("DistanceY", 15, 3, -1, 1, 16.324682),
    Sketcher.Constraint("DistanceY", 16, 3, -1, 1, 16.359259),
    Sketcher.Constraint("DistanceX", 17, 3, -1, 1, 29.477489),
    Sketcher.Constraint("DistanceX", 18, 3, -1, 1, 9.919519),
    Sketcher.Constraint("DistanceY", 20, 3, -1, 1, 47.925359),
    Sketcher.Constraint("DistanceX", -1, 1, 24, 3, 68.339152),
    Sketcher.Constraint("DistanceX", -1, 1, 25, 3, 87.897122),
    Sketcher.Constraint("DistanceY", 25, 3, -1, 1, 48.029091),
    Sketcher.Constraint("DistanceY", 26, 3, -1, 1, 32.246041),
    Sketcher.Constraint("DistanceY", 27, 3, -1, 1, 32.280619),
    Sketcher.Constraint("DistanceX", -1, 1, 29, 3, 9.63845),
    Sketcher.Constraint("DistanceY", 29, 3, -1, 1, 16.462991),
    Sketcher.Constraint("DistanceX", -1, 1, 30, 3, 29.19642),
    Sketcher.Constraint("DistanceY", 30, 3, -1, 1, 16.497569),
    Sketcher.Constraint("DistanceX", -1, 1, 33, 3, 48.754389),
    Sketcher.Constraint("DistanceX", -1, 1, 34, 3, 68.312359),
    Sketcher.Constraint("DistanceX", -1, 1, 35, 3, 87.870328),
    Sketcher.Constraint("DistanceY", 36, 3, -1, 1, 0.818251),
    Sketcher.Constraint("DistanceY", 37, 3, -1, 1, 0.852828),
    Sketcher.Constraint("DistanceX", -1, 1, 38, 3, 87.856931),
    Sketcher.Constraint("DistanceY", 39, 3, -1, 1, 0.576209),
    Sketcher.Constraint("DistanceX", 42, 3, -1, 1, 88.178191),
    Sketcher.Constraint("DistanceX", 43, 3, -1, 1, 68.620221),
    Sketcher.Constraint("DistanceY", -1, 1, 43, 3, 15.103109),
    Sketcher.Constraint("DistanceY", -1, 1, 44, 3, 15.068531),
    Sketcher.Constraint("DistanceY", 45, 3, -1, 1, 0.679941),
    Sketcher.Constraint("DistanceY", 46, 3, -1, 1, 0.714519),
    Sketcher.Constraint("DistanceY", -1, 1, 49, 3, 30.851581),
    Sketcher.Constraint("DistanceX", 50, 3, -1, 1, 68.633618),
    Sketcher.Constraint("DistanceX", 51, 3, -1, 1, 49.075649),
    Sketcher.Constraint("DistanceX", 55, 3, -1, 1, 29.51768),
    Sketcher.Constraint("DistanceY", -1, 1, 55, 3, 30.747849),
    Sketcher.Constraint("DistanceX", 56, 3, -1, 1, 9.95971),
    Sketcher.Constraint("DistanceY", -1, 1, 56, 3, 30.713272),
    Sketcher.Constraint("DistanceY", -1, 1, 63, 3, 14.82649),
    Sketcher.Constraint("DistanceX", -1, 1, 64, 3, 9.598259),
    Sketcher.Constraint("DistanceX", -1, 1, 65, 3, 29.156229),
    Sketcher.Constraint("DistanceX", -1, 1, 66, 3, 9.584862),
    Sketcher.Constraint("DistanceY", -1, 1, 66, 3, 46.39259),
    Sketcher.Constraint("DistanceX", -1, 1, 67, 3, 29.142832),
    Sketcher.Constraint("DistanceX", -1, 1, 72, 3, 68.258771),
    Sketcher.Constraint("DistanceX", -1, 1, 73, 3, 87.81674),
    Sketcher.Constraint("DistanceY", -1, 1, 73, 3, 46.254281),
    Sketcher.Constraint("DistanceY", 0, 2, -1, 1, 54.205559),
    Sketcher.Constraint("DistanceX", 4, 3, -1, 1, 88.124603),
    Sketcher.Constraint("DistanceY", 4, 3, -1, 1, 47.717895),
    Sketcher.Constraint("DistanceX", 5, 3, -1, 1, 68.566634),
    Sketcher.Constraint("DistanceY", 5, 3, -1, 1, 47.752473),
    Sketcher.Constraint("DistanceX", 6, 3, -1, 1, 49.008664),
    Sketcher.Constraint("DistanceY", 8, 3, -1, 1, 32.038577),
    Sketcher.Constraint("DistanceY", 9, 3, -1, 1, 32.073155),
    Sketcher.Constraint("DistanceX", 10, 3, -1, 1, 29.450695),
    Sketcher.Constraint("DistanceY", 10, 3, -1, 1, 47.821627),
    Sketcher.Constraint("DistanceX", 11, 3, -1, 1, 9.892725),
    Sketcher.Constraint("DistanceY", 11, 3, -1, 1, 47.856205),
    Sketcher.Constraint("DistanceX", 12, 3, -1, 1, 29.464092),
    Sketcher.Constraint("DistanceY", 12, 3, -1, 1, 32.107732),
    Sketcher.Constraint("DistanceX", 13, 3, -1, 1, 9.906122),
    Sketcher.Constraint("DistanceX", 14, 3, -1, 1, 88.151397),
    Sketcher.Constraint("DistanceY", 14, 3, -1, 1, 16.290105),
    Sketcher.Constraint("DistanceX", 16, 3, -1, 1, 49.035458),
    Sketcher.Constraint("DistanceY", 17, 3, -1, 1, 16.393837),
    Sketcher.Constraint("DistanceY", 18, 3, -1, 1, 16.428414),
    Sketcher.Constraint("DistanceX", -1, 1, 19, 3, 9.665244),
    Sketcher.Constraint("DistanceY", 19, 3, -1, 1, 47.890782),
    Sketcher.Constraint("DistanceX", -1, 1, 20, 3, 29.223214),
    Sketcher.Constraint("DistanceX", -1, 1, 21, 3, 9.651847),
    Sketcher.Constraint("DistanceY", 21, 3, -1, 1, 32.176887),
    Sketcher.Constraint("DistanceX", -1, 1, 22, 3, 29.209817),
    Sketcher.Constraint("DistanceY", 22, 3, -1, 1, 32.211464),
    Sketcher.Constraint("DistanceX", -1, 1, 23, 3, 48.781183),
    Sketcher.Constraint("DistanceY", 23, 3, -1, 1, 47.959937),
    Sketcher.Constraint("DistanceY", 24, 3, -1, 1, 47.994514),
    Sketcher.Constraint("DistanceX", -1, 1, 26, 3, 48.767786),
    Sketcher.Constraint("DistanceX", -1, 1, 27, 3, 68.325755),
    Sketcher.Constraint("DistanceX", -1, 1, 28, 3, 87.883725),
    Sketcher.Constraint("DistanceY", 28, 3, -1, 1, 32.315196),
    Sketcher.Constraint("DistanceX", -1, 1, 31, 3, 9.625053),
    Sketcher.Constraint("DistanceY", 31, 3, -1, 1, 0.749096),
    Sketcher.Constraint("DistanceX", -1, 1, 32, 3, 29.183023),
    Sketcher.Constraint("DistanceY", 32, 3, -1, 1, 0.783673),
    Sketcher.Constraint("DistanceY", 33, 3, -1, 1, 16.532146),
    Sketcher.Constraint("DistanceY", 34, 3, -1, 1, 16.566723),
    Sketcher.Constraint("DistanceX", -1, 1, 36, 3, 48.740992),
    Sketcher.Constraint("DistanceX", -1, 1, 37, 3, 68.298962),
    Sketcher.Constraint("DistanceY", 38, 3, -1, 1, 0.887405),
    Sketcher.Constraint("DistanceX", 39, 3, -1, 1, 88.164794),
    Sketcher.Constraint("DistanceX", 40, 3, -1, 1, 68.606824),
    Sketcher.Constraint("DistanceY", 40, 3, -1, 1, 0.610787),
    Sketcher.Constraint("DistanceX", 41, 3, -1, 1, 49.048855),
    Sketcher.Constraint("DistanceY", 41, 3, -1, 1, 0.645364),
    Sketcher.Constraint("DistanceY", -1, 1, 42, 3, 15.137686),
    Sketcher.Constraint("DistanceX", 44, 3, -1, 1, 49.062252),
    Sketcher.Constraint("DistanceX", 45, 3, -1, 1, 29.490886),
    Sketcher.Constraint("DistanceX", 46, 3, -1, 1, 9.932916),
    Sketcher.Constraint("DistanceX", 47, 3, -1, 1, 29.504283),
    Sketcher.Constraint("DistanceY", -1, 1, 47, 3, 15.033954),
    Sketcher.Constraint("DistanceX", 48, 3, -1, 1, 9.946313),
    Sketcher.Constraint("DistanceY", -1, 1, 48, 3, 14.999377),
    Sketcher.Constraint("DistanceX", 49, 3, -1, 1, 88.191588),
    Sketcher.Constraint("DistanceY", -1, 1, 50, 3, 30.817004),
    Sketcher.Constraint("DistanceY", -1, 1, 51, 3, 30.782427),
    Sketcher.Constraint("DistanceX", 52, 3, -1, 1, 88.204985),
    Sketcher.Constraint("DistanceY", -1, 1, 52, 3, 46.565477),
    Sketcher.Constraint("DistanceX", 53, 3, -1, 1, 68.647015),
    Sketcher.Constraint("DistanceX", 54, 3, -1, 1, 49.089046),
    Sketcher.Constraint("DistanceY", -1, 1, 54, 3, 46.496322),
    Sketcher.Constraint("DistanceX", 57, 3, -1, 1, 29.531077),
    Sketcher.Constraint("DistanceY", -1, 1, 57, 3, 46.461745),
    Sketcher.Constraint("DistanceX", 58, 3, -1, 1, 9.973107),
    Sketcher.Constraint("DistanceY", -1, 1, 58, 3, 46.427167),
    Sketcher.Constraint("DistanceX", -1, 1, 59, 3, 9.611656),
    Sketcher.Constraint("DistanceX", -1, 1, 60, 3, 29.169626),
    Sketcher.Constraint("DistanceY", -1, 1, 60, 3, 14.930222),
    Sketcher.Constraint("DistanceX", -1, 1, 61, 3, 48.727595),
    Sketcher.Constraint("DistanceY", -1, 1, 61, 3, 14.895645),
    Sketcher.Constraint("DistanceX", -1, 1, 62, 3, 68.285565),
    Sketcher.Constraint("DistanceY", -1, 1, 62, 3, 14.861067),
    Sketcher.Constraint("DistanceX", -1, 1, 63, 3, 87.843534),
    Sketcher.Constraint("DistanceY", -1, 1, 64, 3, 30.678695),
    Sketcher.Constraint("DistanceY", -1, 1, 65, 3, 30.644117),
    Sketcher.Constraint("DistanceY", -1, 1, 67, 3, 46.358013),
    Sketcher.Constraint("DistanceX", -1, 1, 69, 3, 68.272168),
    Sketcher.Constraint("DistanceY", -1, 1, 69, 3, 30.574963),
    Sketcher.Constraint("DistanceX", -1, 1, 70, 3, 87.830137),
    Sketcher.Constraint("DistanceY", -1, 1, 70, 3, 30.540385),
    Sketcher.Constraint("DistanceY", -1, 1, 71, 3, 46.323435),
    Sketcher.Constraint("DistanceY", -1, 1, 72, 3, 46.288858),
    Sketcher.Constraint("DistanceX", 0, 2, -1, 1, 147.523507),
])
pad2 = body2.newObject("PartDesign::Pad", "Pad001")
pad2.Profile = sketch2
pad2.Length = Q("2 in")
pad2.Reversed = True

doc.recompute()
